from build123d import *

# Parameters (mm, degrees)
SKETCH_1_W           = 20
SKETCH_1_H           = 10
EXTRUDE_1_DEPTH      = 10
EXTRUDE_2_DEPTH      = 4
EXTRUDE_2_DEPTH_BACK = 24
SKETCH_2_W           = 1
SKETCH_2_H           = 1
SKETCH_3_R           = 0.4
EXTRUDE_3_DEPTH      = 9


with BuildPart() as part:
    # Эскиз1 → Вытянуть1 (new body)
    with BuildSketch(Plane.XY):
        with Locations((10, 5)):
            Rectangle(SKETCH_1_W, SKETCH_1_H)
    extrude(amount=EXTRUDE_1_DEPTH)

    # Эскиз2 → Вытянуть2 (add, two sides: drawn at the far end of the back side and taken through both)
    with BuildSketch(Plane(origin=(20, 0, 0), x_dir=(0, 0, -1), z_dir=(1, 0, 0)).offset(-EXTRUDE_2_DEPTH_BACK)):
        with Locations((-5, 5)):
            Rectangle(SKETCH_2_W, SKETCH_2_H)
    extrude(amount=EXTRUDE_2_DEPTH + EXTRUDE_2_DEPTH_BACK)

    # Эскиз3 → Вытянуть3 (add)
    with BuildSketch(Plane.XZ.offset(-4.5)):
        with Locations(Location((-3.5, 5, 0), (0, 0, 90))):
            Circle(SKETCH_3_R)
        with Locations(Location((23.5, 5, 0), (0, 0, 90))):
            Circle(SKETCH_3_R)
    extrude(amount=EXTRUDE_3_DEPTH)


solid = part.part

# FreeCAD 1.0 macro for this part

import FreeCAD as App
import Part
import Sketcher

V = App.Vector
Q = App.Units.Quantity


def add_polygon(sketch, points):
    """Adds a closed chain of lines whose ends are joined by coincident constraints."""
    first, n = sketch.GeometryCount, len(points)
    for a, b in zip(points, points[1:] + points[:1]):
        sketch.addGeometry(Part.LineSegment(App.Vector(*a, 0), App.Vector(*b, 0)), False)
    for i in range(n):
        sketch.addConstraint(Sketcher.Constraint("Coincident", first + i, 2, first + (i + 1) % n, 1))

doc = App.newDocument("Part")
body = doc.addObject("PartDesign::Body", "Body")

sketch1 = body.newObject("Sketcher::SketchObject", "Sketch")
sketch1.AttachmentSupport = (doc.getObject("XY_Plane"), [""])
sketch1.MapMode = "FlatFace"
add_polygon(sketch1, [(0, 10), (0, 0), (20, 0), (20, 10)])
sketch1.addConstraint([
    Sketcher.Constraint("Vertical", 0),
    Sketcher.Constraint("Horizontal", 1),
    Sketcher.Constraint("Vertical", 2),
    Sketcher.Constraint("Horizontal", 3),
    Sketcher.Constraint("Coincident", 0, 2, -1, 1),
    Sketcher.Constraint("DistanceX", 1, 1, 1, 2, Q("20 mm")),
    Sketcher.Constraint("DistanceY", 0, 2, 0, 1, Q("10 mm")),
])
pad1 = body.newObject("PartDesign::Pad", "Pad")
pad1.Profile = sketch1
pad1.Length = 10

sketch2 = body.newObject("Sketcher::SketchObject", "Sketch001")
sketch2.AttachmentSupport = (doc.getObject("YZ_Plane"), [""])
sketch2.MapMode = "FlatFace"
sketch2.AttachmentOffset = App.Placement(V(0, 0, 20), App.Rotation())
add_polygon(sketch2, [(5.5, 5.5), (4.5, 5.5), (4.5, 4.5), (5.5, 4.5)])
sketch2.addConstraint([
    Sketcher.Constraint("Horizontal", 0),
    Sketcher.Constraint("Vertical", 1),
    Sketcher.Constraint("Horizontal", 2),
    Sketcher.Constraint("Vertical", 3),
    Sketcher.Constraint("Equal", 2, 1),
    Sketcher.Constraint("DistanceX", 0, 2, 0, 1, Q("1 mm")),
    Sketcher.Constraint("DistanceX", -1, 1, 0, 2, Q("4.5 mm")),
    Sketcher.Constraint("DistanceY", -1, 1, 0, 2, Q("5.5 mm")),
])
pad2 = body.newObject("PartDesign::Pad", "Pad001")
pad2.Profile = sketch2
pad2.Type = "TwoLengths"
pad2.Length = 4
pad2.Length2 = 24

sketch3 = body.newObject("Sketcher::SketchObject", "Sketch002")
sketch3.AttachmentSupport = (doc.getObject("XZ_Plane"), [""])
sketch3.MapMode = "FlatFace"
sketch3.AttachmentOffset = App.Placement(V(0, 0, -4.5), App.Rotation())
sketch3.addGeometry([
    Part.Circle(V(-3.5, 5, 0), V(0, 0, 1), 0.4),
    Part.Circle(V(23.5, 5, 0), V(0, 0, 1), 0.4),
], False)
sketch3.addConstraint([
    Sketcher.Constraint("Equal", 0, 1),
    Sketcher.Constraint("Horizontal", 0, 3, 1, 3),
    Sketcher.Constraint("Diameter", 0, Q("0.8 mm")),
    Sketcher.Constraint("DistanceY", -1, 1, 0, 3, Q("5 mm")),
    Sketcher.Constraint("DistanceX", 0, 3, 1, 3, Q("27 mm")),
    Sketcher.Constraint("DistanceX", 0, 3, -1, 1, Q("3.5 mm")),
])
pad3 = body.newObject("PartDesign::Pad", "Pad002")
pad3.Profile = sketch3
pad3.Length = 9

doc.recompute()
